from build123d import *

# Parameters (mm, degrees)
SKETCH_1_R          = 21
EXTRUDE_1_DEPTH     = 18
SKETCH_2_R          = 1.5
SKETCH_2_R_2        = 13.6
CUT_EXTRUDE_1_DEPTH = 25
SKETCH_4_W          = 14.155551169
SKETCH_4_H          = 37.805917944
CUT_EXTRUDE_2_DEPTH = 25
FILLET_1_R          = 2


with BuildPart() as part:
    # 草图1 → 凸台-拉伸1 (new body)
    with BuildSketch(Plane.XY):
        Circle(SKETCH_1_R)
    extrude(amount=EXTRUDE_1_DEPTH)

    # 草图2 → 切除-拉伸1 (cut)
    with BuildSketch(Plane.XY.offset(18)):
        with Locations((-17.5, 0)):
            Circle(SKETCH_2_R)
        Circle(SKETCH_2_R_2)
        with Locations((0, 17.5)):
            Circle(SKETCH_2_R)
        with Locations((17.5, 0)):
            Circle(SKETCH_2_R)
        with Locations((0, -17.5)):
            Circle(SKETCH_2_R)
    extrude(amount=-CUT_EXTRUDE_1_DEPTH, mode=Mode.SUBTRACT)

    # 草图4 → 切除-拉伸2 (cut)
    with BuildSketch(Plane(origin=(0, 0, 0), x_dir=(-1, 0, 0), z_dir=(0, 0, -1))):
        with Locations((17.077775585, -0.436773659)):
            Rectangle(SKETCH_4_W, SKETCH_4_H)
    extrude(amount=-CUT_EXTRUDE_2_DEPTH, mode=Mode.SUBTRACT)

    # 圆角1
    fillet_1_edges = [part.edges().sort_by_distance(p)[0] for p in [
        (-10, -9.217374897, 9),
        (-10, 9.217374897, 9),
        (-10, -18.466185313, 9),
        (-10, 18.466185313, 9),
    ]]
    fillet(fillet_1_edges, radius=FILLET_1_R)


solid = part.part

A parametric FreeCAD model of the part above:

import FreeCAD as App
import Part
import Sketcher

V = App.Vector
Q = App.Units.Quantity


def edges_at(feature, points):
    """Names of the edges that pass closest to the given points."""
    edges = feature.Shape.Edges
    near = lambda p: min(range(len(edges)), key=lambda i: edges[i].distToShape(Part.Vertex(*p))[0])
    return sorted({f"Edge{near(p) + 1}" for p in points})

doc = App.newDocument("Part")
body = doc.addObject("PartDesign::Body", "Body")

# Sketch on XY plane
sketch1 = body.newObject("Sketcher::SketchObject", "Sketch")
sketch1.AttachmentSupport = (doc.getObject("XY_Plane"), [""])
sketch1.MapMode = "FlatFace"
sketch1.addGeometry(Part.Circle(V(0, 0, 0), V(0, 0, 1), 21), False)
sketch1.addConstraint([
    Sketcher.Constraint("Coincident", 0, 3, -1, 1),
    Sketcher.Constraint("Diameter", 0, Q("42 mm")),
])
pad1 = body.newObject("PartDesign::Pad", "Pad")
pad1.Profile = sketch1
pad1.Length = 18

# Sketch on XY plane
sketch2 = body.newObject("Sketcher::SketchObject", "Sketch001")
sketch2.AttachmentSupport = (doc.getObject("XY_Plane"), [""])
sketch2.MapMode = "FlatFace"
sketch2.AttachmentOffset = App.Placement(V(0, 0, 18), App.Rotation())
sketch2.addGeometry([
    Part.Circle(V(-17.5, 0, 0), V(0, 0, 1), 1.5),  # 0
    Part.Circle(V(0, 0, 0), V(0, 0, 1), 13.6),  # 1
    Part.Circle(V(0, 17.5, 0), V(0, 0, 1), 1.5),  # 2
    Part.Circle(V(17.5, 0, 0), V(0, 0, 1), 1.5),  # 3
    Part.Circle(V(0, -17.5, 0), V(0, 0, 1), 1.5),  # 4
], False)
sketch2.addConstraint([
    Sketcher.Constraint("Coincident", 1, 3, -1, 1),
    Sketcher.Constraint("Equal", 0, 2),
    Sketcher.Constraint("Equal", 2, 3),
    Sketcher.Constraint("Equal", 3, 4),
    Sketcher.Constraint("Symmetric", 0, 3, 3, 3, -1, 1),
    Sketcher.Constraint("Symmetric", 2, 3, 4, 3, -1, 1),
    Sketcher.Constraint("PointOnObject", 0, 3, -1),
    Sketcher.Constraint("PointOnObject", 2, 3, -2),
    Sketcher.Constraint("Diameter", 0, Q("3 mm")),
    Sketcher.Constraint("Diameter", 1, Q("27.2 mm")),
    Sketcher.Constraint("DistanceX", 0, 3, 3, 3, Q("35 mm")),
    Sketcher.Constraint("DistanceY", 4, 3, 2, 3, Q("35 mm")),
])
pocket1 = body.newObject("PartDesign::Pocket", "Pocket")
pocket1.Profile = sketch2
pocket1.Length = 25

# Sketch on XY plane
sketch3 = body.newObject("Sketcher::SketchObject", "Sketch002")
sketch3.AttachmentSupport = (doc.getObject("XY_Plane"), [""])
sketch3.MapMode = "FlatFace"
sketch3.addGeometry([
    Part.LineSegment(V(-10, 18, 0), V(-10, -19, 0)),
    Part.LineSegment(V(-10, -19, 0), V(-24, -19, 0)),
    Part.LineSegment(V(-24, -19, 0), V(-24, 18, 0)),
    Part.LineSegment(V(-24, 18, 0), V(-10, 18, 0)),
], False)
sketch3.addConstraint([
    Sketcher.Constraint("Coincident", 0, 2, 1, 1),
    Sketcher.Constraint("Coincident", 1, 2, 2, 1),
    Sketcher.Constraint("Coincident", 2, 2, 3, 1),
    Sketcher.Constraint("Coincident", 3, 2, 0, 1),
    Sketcher.Constraint("Vertical", 0),
    Sketcher.Constraint("Horizontal", 1),
    Sketcher.Constraint("Vertical", 2),
    Sketcher.Constraint("Horizontal", 3),
    Sketcher.Constraint("DistanceX", 0, 2, -1, 1, Q("10 mm")),
    Sketcher.Constraint("DistanceX", 1, 2, 1, 1, Q("14.155551 mm")),
    Sketcher.Constraint("DistanceY", 0, 2, 0, 1, Q("37.805918 mm")),
    Sketcher.Constraint("DistanceY", 0, 2, -1, 1, Q("19.339733 mm")),
])
pocket2 = body.newObject("PartDesign::Pocket", "Pocket001")
pocket2.Profile = sketch3
pocket2.Length = 25
pocket2.Reversed = True
doc.recompute()

fillet = body.newObject("PartDesign::Fillet", "Fillet")
fillet.Base = (pocket2, edges_at(pocket2, [
    (-10, -9.217, 9),
    (-10, 9.217, 9),
    (-10, -18.466, 9),
    (-10, 18.466, 9),
]))
fillet.Radius = 2

doc.recompute()
